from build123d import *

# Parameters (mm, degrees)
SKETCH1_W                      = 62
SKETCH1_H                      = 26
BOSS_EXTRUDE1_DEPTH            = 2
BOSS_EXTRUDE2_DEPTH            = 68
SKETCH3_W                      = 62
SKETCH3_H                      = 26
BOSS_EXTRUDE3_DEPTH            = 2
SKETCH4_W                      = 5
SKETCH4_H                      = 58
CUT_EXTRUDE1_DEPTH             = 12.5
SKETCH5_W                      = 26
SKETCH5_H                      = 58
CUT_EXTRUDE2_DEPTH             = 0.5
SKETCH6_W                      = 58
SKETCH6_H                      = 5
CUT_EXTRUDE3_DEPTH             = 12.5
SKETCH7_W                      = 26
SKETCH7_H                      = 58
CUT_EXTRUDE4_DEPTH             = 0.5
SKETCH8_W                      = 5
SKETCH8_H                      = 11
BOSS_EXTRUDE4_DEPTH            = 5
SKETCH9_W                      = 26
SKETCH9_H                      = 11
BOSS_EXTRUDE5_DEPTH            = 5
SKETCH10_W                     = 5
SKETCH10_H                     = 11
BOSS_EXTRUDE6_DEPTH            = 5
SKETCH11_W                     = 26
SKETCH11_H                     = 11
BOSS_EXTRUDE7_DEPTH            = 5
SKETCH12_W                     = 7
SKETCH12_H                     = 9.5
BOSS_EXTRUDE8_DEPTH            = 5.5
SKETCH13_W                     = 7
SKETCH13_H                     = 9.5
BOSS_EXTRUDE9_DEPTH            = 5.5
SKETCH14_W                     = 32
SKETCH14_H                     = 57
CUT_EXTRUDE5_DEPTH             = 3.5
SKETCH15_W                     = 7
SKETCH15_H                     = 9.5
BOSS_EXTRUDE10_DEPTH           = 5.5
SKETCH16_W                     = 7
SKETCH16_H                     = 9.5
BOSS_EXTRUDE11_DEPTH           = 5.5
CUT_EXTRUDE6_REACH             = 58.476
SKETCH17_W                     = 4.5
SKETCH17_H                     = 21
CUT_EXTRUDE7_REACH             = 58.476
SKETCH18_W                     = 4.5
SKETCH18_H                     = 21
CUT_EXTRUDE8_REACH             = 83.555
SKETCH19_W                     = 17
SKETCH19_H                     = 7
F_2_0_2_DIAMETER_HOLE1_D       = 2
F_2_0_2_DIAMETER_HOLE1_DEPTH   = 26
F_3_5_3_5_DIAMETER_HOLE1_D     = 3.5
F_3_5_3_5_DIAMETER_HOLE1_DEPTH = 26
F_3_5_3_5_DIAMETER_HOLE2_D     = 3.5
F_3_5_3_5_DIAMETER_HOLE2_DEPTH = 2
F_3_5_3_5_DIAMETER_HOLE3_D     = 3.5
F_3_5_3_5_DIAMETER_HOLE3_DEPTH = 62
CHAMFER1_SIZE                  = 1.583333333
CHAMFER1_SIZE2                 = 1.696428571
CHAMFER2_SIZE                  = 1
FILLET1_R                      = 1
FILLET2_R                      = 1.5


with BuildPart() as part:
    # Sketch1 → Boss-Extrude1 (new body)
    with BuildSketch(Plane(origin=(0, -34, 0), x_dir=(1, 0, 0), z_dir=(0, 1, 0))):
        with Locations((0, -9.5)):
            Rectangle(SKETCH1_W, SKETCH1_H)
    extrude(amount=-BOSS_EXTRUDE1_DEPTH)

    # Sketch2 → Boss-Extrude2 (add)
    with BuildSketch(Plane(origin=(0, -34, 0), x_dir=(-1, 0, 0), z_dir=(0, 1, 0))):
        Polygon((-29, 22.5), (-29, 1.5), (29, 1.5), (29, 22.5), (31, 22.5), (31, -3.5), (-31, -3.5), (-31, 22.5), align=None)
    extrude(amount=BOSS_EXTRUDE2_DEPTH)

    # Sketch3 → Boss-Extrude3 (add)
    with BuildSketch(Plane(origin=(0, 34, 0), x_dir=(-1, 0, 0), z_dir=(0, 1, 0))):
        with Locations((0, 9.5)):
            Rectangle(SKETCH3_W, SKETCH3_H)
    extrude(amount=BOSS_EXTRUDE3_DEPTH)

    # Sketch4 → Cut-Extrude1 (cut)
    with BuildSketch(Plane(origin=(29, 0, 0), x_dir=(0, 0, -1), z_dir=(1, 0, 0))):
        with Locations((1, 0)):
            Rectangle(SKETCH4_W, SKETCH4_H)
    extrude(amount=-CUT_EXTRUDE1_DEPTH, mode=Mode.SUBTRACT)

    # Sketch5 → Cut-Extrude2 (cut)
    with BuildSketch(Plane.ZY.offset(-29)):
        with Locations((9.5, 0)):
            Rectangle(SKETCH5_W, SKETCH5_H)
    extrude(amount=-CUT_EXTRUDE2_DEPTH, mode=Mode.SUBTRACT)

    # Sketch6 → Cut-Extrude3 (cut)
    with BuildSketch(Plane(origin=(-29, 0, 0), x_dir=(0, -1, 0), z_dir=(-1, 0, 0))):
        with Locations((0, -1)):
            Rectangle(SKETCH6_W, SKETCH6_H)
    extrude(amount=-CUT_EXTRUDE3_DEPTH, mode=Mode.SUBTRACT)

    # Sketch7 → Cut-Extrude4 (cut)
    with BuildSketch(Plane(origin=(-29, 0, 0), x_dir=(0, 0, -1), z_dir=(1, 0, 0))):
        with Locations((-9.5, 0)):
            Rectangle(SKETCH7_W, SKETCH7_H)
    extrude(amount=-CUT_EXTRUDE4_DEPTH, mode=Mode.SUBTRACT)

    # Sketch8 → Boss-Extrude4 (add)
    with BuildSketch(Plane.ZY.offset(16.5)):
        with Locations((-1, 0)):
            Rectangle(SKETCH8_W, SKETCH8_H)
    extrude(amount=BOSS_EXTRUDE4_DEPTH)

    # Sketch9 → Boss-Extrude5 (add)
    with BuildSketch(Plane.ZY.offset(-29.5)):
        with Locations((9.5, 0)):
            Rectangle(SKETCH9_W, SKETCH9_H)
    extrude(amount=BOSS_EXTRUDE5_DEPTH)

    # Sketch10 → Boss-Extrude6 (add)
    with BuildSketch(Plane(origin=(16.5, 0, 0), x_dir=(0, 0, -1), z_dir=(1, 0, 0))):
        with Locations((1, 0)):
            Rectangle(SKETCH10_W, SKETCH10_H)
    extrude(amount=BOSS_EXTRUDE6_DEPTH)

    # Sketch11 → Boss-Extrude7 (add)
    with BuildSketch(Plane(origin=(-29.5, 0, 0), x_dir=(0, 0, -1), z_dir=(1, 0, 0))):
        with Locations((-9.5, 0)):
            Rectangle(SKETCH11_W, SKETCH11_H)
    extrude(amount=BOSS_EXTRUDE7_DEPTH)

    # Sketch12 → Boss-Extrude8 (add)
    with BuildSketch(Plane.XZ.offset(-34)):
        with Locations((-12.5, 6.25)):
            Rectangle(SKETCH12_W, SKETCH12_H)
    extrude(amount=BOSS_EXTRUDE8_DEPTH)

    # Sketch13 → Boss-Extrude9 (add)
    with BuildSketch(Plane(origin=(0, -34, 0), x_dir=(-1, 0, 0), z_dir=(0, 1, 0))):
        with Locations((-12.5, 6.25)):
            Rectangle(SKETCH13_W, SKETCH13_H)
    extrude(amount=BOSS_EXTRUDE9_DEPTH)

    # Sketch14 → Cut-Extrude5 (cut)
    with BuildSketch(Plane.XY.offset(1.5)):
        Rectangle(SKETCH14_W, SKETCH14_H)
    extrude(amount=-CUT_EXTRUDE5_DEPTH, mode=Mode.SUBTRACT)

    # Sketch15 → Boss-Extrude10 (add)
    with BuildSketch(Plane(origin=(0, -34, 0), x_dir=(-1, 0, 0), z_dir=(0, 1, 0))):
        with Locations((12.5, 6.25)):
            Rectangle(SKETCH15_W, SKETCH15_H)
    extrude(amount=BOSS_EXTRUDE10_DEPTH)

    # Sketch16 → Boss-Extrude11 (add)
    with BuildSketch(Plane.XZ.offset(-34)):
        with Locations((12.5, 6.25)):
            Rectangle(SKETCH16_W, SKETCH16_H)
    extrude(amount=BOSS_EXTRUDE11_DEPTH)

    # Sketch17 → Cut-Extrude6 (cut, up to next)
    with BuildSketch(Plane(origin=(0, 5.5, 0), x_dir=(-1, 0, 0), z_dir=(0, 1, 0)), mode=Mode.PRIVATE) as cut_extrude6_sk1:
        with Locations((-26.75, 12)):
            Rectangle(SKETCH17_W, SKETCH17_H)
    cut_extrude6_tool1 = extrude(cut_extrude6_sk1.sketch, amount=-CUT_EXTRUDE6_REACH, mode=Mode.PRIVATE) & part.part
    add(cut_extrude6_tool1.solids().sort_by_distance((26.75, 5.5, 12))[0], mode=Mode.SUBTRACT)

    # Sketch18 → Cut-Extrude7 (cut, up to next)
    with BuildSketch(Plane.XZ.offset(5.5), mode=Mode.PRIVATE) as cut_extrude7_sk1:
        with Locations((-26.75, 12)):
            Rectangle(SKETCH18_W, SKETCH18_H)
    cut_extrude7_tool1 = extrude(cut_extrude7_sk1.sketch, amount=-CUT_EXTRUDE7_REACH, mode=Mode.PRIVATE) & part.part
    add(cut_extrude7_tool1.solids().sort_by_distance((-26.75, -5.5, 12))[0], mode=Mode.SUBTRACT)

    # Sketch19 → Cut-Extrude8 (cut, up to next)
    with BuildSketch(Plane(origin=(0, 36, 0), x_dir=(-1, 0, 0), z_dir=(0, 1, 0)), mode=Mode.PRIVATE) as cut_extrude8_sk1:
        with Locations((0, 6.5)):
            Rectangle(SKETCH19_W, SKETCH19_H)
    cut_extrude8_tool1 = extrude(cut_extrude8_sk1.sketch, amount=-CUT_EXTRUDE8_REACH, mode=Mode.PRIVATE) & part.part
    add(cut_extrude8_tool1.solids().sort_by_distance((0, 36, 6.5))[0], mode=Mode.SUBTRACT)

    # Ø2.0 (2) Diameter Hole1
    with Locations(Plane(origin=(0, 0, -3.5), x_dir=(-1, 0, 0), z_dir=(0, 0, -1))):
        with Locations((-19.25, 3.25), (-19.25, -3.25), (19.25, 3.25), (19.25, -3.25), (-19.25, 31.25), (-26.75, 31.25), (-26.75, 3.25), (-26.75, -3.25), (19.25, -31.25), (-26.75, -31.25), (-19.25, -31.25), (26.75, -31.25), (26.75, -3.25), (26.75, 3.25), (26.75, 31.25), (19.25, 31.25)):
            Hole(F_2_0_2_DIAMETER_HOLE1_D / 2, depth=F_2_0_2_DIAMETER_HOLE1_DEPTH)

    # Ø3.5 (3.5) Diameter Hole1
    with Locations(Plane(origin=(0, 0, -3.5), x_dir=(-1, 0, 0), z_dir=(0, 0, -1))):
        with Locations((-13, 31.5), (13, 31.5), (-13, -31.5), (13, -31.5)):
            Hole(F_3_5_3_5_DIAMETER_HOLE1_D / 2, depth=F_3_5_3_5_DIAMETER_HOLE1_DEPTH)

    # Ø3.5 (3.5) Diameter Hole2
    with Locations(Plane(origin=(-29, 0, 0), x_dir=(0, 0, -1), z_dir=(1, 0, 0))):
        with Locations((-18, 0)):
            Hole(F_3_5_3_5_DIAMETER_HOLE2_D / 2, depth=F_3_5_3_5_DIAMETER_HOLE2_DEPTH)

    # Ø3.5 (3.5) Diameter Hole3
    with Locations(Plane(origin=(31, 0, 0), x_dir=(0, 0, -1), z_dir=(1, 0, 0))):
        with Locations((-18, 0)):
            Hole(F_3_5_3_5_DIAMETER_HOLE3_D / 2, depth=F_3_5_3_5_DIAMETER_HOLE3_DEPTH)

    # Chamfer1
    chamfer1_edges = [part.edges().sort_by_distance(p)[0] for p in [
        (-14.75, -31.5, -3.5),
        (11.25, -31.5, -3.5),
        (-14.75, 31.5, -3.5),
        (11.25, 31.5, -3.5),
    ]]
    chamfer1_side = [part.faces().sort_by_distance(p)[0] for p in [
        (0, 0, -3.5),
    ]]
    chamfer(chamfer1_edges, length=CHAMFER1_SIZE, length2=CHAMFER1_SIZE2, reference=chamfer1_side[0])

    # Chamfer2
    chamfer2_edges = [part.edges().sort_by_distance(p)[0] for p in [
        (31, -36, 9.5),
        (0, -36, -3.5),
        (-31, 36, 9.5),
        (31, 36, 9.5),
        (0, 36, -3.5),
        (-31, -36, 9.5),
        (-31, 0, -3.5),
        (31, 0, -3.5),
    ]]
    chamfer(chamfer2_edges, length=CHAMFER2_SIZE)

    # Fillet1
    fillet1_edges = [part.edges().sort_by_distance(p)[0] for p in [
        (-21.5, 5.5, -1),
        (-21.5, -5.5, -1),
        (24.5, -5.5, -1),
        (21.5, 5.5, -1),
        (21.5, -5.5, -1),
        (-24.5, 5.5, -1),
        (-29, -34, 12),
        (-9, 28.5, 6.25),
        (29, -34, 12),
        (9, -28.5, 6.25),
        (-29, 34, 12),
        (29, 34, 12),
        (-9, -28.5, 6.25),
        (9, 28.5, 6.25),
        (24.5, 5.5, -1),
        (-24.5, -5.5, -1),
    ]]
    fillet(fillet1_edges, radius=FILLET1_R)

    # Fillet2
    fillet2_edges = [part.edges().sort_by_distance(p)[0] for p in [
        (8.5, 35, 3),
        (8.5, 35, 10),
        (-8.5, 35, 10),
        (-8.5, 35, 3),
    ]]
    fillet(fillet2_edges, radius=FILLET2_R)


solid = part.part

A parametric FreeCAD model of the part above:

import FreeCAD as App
import Part
import Sketcher
from FreeCAD import Vector


def edges_at(feature, points):
    """Names of the edges that pass closest to the given points."""
    edges = feature.Shape.Edges
    near = lambda p: min(range(len(edges)), key=lambda i: edges[i].distToShape(Part.Vertex(*p))[0])
    return sorted({f"Edge{near(p) + 1}" for p in points})

doc = App.newDocument("Part")
body = doc.addObject("PartDesign::Body", "Body")

sketch1 = body.newObject("Sketcher::SketchObject", "Sketch")
sketch1.AttachmentSupport = (doc.getObject("XZ_Plane"), [""])
sketch1.MapMode = "FlatFace"
sketch1.AttachmentOffset = App.Placement(Vector(0, 0, 34), App.Rotation())
sketch1.addGeometry([
    Part.LineSegment(Vector(-31, -3.5, 0), Vector(-31, 22.5, 0)),
    Part.LineSegment(Vector(-31, 22.5, 0), Vector(31, 22.5, 0)),
    Part.LineSegment(Vector(31, 22.5, 0), Vector(31, -3.5, 0)),
    Part.LineSegment(Vector(31, -3.5, 0), Vector(-31, -3.5, 0)),
], False)
sketch1.addConstraint([
    Sketcher.Constraint("Coincident", 0, 2, 1, 1),
    Sketcher.Constraint("Coincident", 1, 2, 2, 1),
    Sketcher.Constraint("Coincident", 2, 2, 3, 1),
    Sketcher.Constraint("Coincident", 3, 2, 0, 1),
    Sketcher.Constraint("Vertical", 0),
    Sketcher.Constraint("Horizontal", 1),
    Sketcher.Constraint("Vertical", 2),
    Sketcher.Constraint("Horizontal", 3),
    Sketcher.Constraint("DistanceX", 1, 1, 1, 2, 62.0),
    Sketcher.Constraint("DistanceY", 0, 1, 0, 2, 26.0),
    Sketcher.Constraint("DistanceX", 0, 2, -1, 1, 31.0),
    Sketcher.Constraint("DistanceY", -1, 1, 0, 2, 22.5),
])
pad1 = body.newObject("PartDesign::Pad", "Pad")
pad1.Profile = sketch1
pad1.Length = 2

sketch2 = body.newObject("Sketcher::SketchObject", "Sketch001")
sketch2.AttachmentSupport = (doc.getObject("XZ_Plane"), [""])
sketch2.MapMode = "FlatFace"
sketch2.AttachmentOffset = App.Placement(Vector(0, 0, 34), App.Rotation())
sketch2.addGeometry([
    Part.LineSegment(Vector(29, 1.5, 0), Vector(29, 22.5, 0)),
    Part.LineSegment(Vector(29, 22.5, 0), Vector(31, 22.5, 0)),
    Part.LineSegment(Vector(31, 22.5, 0), Vector(31, -3.5, 0)),
    Part.LineSegment(Vector(31, -3.5, 0), Vector(-31, -3.5, 0)),
    Part.LineSegment(Vector(-31, -3.5, 0), Vector(-31, 22.5, 0)),
    Part.LineSegment(Vector(-31, 22.5, 0), Vector(-29, 22.5, 0)),
    Part.LineSegment(Vector(-29, 22.5, 0), Vector(-29, 1.5, 0)),
    Part.LineSegment(Vector(-29, 1.5, 0), Vector(29, 1.5, 0)),
], False)
sketch2.addConstraint([
    Sketcher.Constraint("Coincident", 0, 2, 1, 1),
    Sketcher.Constraint("Coincident", 1, 2, 2, 1),
    Sketcher.Constraint("Coincident", 2, 2, 3, 1),
    Sketcher.Constraint("Coincident", 3, 2, 4, 1),
    Sketcher.Constraint("Coincident", 4, 2, 5, 1),
    Sketcher.Constraint("Coincident", 5, 2, 6, 1),
    Sketcher.Constraint("Coincident", 6, 2, 7, 1),
    Sketcher.Constraint("Coincident", 7, 2, 0, 1),
    Sketcher.Constraint("Vertical", 0),
    Sketcher.Constraint("Horizontal", 1),
    Sketcher.Constraint("Vertical", 2),
    Sketcher.Constraint("Horizontal", 3),
    Sketcher.Constraint("Vertical", 4),
    Sketcher.Constraint("Horizontal", 5),
    Sketcher.Constraint("Vertical", 6),
    Sketcher.Constraint("Horizontal", 7),
    Sketcher.Constraint("Symmetric", 1, 2, 4, 2, -2),
    Sketcher.Constraint("Equal", 1, 5),
    Sketcher.Constraint("DistanceX", 1, 1, 1, 2, 2.0),
    Sketcher.Constraint("DistanceX", 3, 2, 3, 1, 62.0),
    Sketcher.Constraint("DistanceY", 0, 1, 0, 2, 21.0),
    Sketcher.Constraint("DistanceY", 2, 2, 2, 1, 26.0),
    Sketcher.Constraint("DistanceY", -1, 1, 0, 2, 22.5),
])
pad2 = body.newObject("PartDesign::Pad", "Pad001")
pad2.Profile = sketch2
pad2.Length = 68
pad2.Reversed = True

sketch3 = body.newObject("Sketcher::SketchObject", "Sketch002")
sketch3.AttachmentSupport = (doc.getObject("XZ_Plane"), [""])
sketch3.MapMode = "FlatFace"
sketch3.AttachmentOffset = App.Placement(Vector(0, 0, -34), App.Rotation())
sketch3.addGeometry([
    Part.LineSegment(Vector(31, 22.5, 0), Vector(31, -3.5, 0)),
    Part.LineSegment(Vector(31, -3.5, 0), Vector(-31, -3.5, 0)),
    Part.LineSegment(Vector(-31, -3.5, 0), Vector(-31, 22.5, 0)),
    Part.LineSegment(Vector(-31, 22.5, 0), Vector(31, 22.5, 0)),
], False)
sketch3.addConstraint([
    Sketcher.Constraint("Coincident", 0, 2, 1, 1),
    Sketcher.Constraint("Coincident", 1, 2, 2, 1),
    Sketcher.Constraint("Coincident", 2, 2, 3, 1),
    Sketcher.Constraint("Coincident", 3, 2, 0, 1),
    Sketcher.Constraint("Vertical", 0),
    Sketcher.Constraint("Horizontal", 1),
    Sketcher.Constraint("Vertical", 2),
    Sketcher.Constraint("Horizontal", 3),
    Sketcher.Constraint("DistanceX", 1, 2, 1, 1, 62.0),
    Sketcher.Constraint("DistanceY", 0, 2, 0, 1, 26.0),
    Sketcher.Constraint("DistanceX", -1, 1, 0, 2, 31.0),
    Sketcher.Constraint("DistanceY", 0, 2, -1, 1, 3.5),
])
pad3 = body.newObject("PartDesign::Pad", "Pad002")
pad3.Profile = sketch3
pad3.Length = 2
pad3.Reversed = True

sketch4 = body.newObject("Sketcher::SketchObject", "Sketch003")
sketch4.AttachmentSupport = (doc.getObject("YZ_Plane"), [""])
sketch4.MapMode = "FlatFace"
sketch4.AttachmentOffset = App.Placement(Vector(0, 0, 29), App.Rotation())
sketch4.addGeometry([
    Part.LineSegment(Vector(29, 1.5, 0), Vector(-29, 1.5, 0)),
    Part.LineSegment(Vector(-29, 1.5, 0), Vector(-29, -3.5, 0)),
    Part.LineSegment(Vector(-29, -3.5, 0), Vector(29, -3.5, 0)),
    Part.LineSegment(Vector(29, -3.5, 0), Vector(29, 1.5, 0)),
], False)
sketch4.addConstraint([
    Sketcher.Constraint("Coincident", 0, 2, 1, 1),
    Sketcher.Constraint("Coincident", 1, 2, 2, 1),
    Sketcher.Constraint("Coincident", 2, 2, 3, 1),
    Sketcher.Constraint("Coincident", 3, 2, 0, 1),
    Sketcher.Constraint("Horizontal", 0),
    Sketcher.Constraint("Vertical", 1),
    Sketcher.Constraint("Horizontal", 2),
    Sketcher.Constraint("Vertical", 3),
    Sketcher.Constraint("DistanceX", 0, 2, 0, 1, 58.0),
    Sketcher.Constraint("DistanceY", 1, 2, 1, 1, 5.0),
    Sketcher.Constraint("DistanceX", 0, 2, -1, 1, 29.0),
    Sketcher.Constraint("DistanceY", -1, 1, 0, 2, 1.5),
])
pocket1 = body.newObject("PartDesign::Pocket", "Pocket")
pocket1.Profile = sketch4
pocket1.Length = 12.5

sketch5 = body.newObject("Sketcher::SketchObject", "Sketch004")
sketch5.AttachmentSupport = (doc.getObject("YZ_Plane"), [""])
sketch5.MapMode = "FlatFace"
sketch5.AttachmentOffset = App.Placement(Vector(0, 0, 29), App.Rotation())
sketch5.addGeometry([
    Part.LineSegment(Vector(29, -3.5, 0), Vector(-29, -3.5, 0)),
    Part.LineSegment(Vector(-29, -3.5, 0), Vector(-29, 22.5, 0)),
    Part.LineSegment(Vector(-29, 22.5, 0), Vector(29, 22.5, 0)),
    Part.LineSegment(Vector(29, 22.5, 0), Vector(29, -3.5, 0)),
], False)
sketch5.addConstraint([
    Sketcher.Constraint("Coincident", 0, 2, 1, 1),
    Sketcher.Constraint("Coincident", 1, 2, 2, 1),
    Sketcher.Constraint("Coincident", 2, 2, 3, 1),
    Sketcher.Constraint("Coincident", 3, 2, 0, 1),
    Sketcher.Constraint("Horizontal", 0),
    Sketcher.Constraint("Vertical", 1),
    Sketcher.Constraint("Horizontal", 2),
    Sketcher.Constraint("Vertical", 3),
    Sketcher.Constraint("DistanceX", 0, 2, 0, 1, 58.0),
    Sketcher.Constraint("DistanceY", 1, 1, 1, 2, 26.0),
    Sketcher.Constraint("DistanceX", 0, 2, -1, 1, 29.0),
    Sketcher.Constraint("DistanceY", 0, 2, -1, 1, 3.5),
])
pocket2 = body.newObject("PartDesign::Pocket", "Pocket001")
pocket2.Profile = sketch5
pocket2.Length = 0.5
pocket2.Reversed = True

sketch6 = body.newObject("Sketcher::SketchObject", "Sketch005")
sketch6.AttachmentSupport = (doc.getObject("YZ_Plane"), [""])
sketch6.MapMode = "FlatFace"
sketch6.AttachmentOffset = App.Placement(Vector(0, 0, -29), App.Rotation())
sketch6.addGeometry([
    Part.LineSegment(Vector(29, 1.5, 0), Vector(29, -3.5, 0)),
    Part.LineSegment(Vector(29, -3.5, 0), Vector(-29, -3.5, 0)),
    Part.LineSegment(Vector(-29, -3.5, 0), Vector(-29, 1.5, 0)),
    Part.LineSegment(Vector(-29, 1.5, 0), Vector(29, 1.5, 0)),
], False)
sketch6.addConstraint([
    Sketcher.Constraint("Coincident", 0, 2, 1, 1),
    Sketcher.Constraint("Coincident", 1, 2, 2, 1),
    Sketcher.Constraint("Coincident", 2, 2, 3, 1),
    Sketcher.Constraint("Coincident", 3, 2, 0, 1),
    Sketcher.Constraint("Vertical", 0),
    Sketcher.Constraint("Horizontal", 1),
    Sketcher.Constraint("Vertical", 2),
    Sketcher.Constraint("Horizontal", 3),
    Sketcher.Constraint("DistanceX", 1, 2, 1, 1, 58.0),
    Sketcher.Constraint("DistanceY", 0, 2, 0, 1, 5.0),
    Sketcher.Constraint("DistanceX", -1, 1, 0, 2, 29.0),
    Sketcher.Constraint("DistanceY", 0, 2, -1, 1, 3.5),
])
pocket3 = body.newObject("PartDesign::Pocket", "Pocket002")
pocket3.Profile = sketch6
pocket3.Length = 12.5
pocket3.Reversed = True

sketch7 = body.newObject("Sketcher::SketchObject", "Sketch006")
sketch7.AttachmentSupport = (doc.getObject("YZ_Plane"), [""])
sketch7.MapMode = "FlatFace"
sketch7.AttachmentOffset = App.Placement(Vector(0, 0, -29), App.Rotation())
sketch7.addGeometry([
    Part.LineSegment(Vector(29, 22.5, 0), Vector(-29, 22.5, 0)),
    Part.LineSegment(Vector(-29, 22.5, 0), Vector(-29, -3.5, 0)),
    Part.LineSegment(Vector(-29, -3.5, 0), Vector(29, -3.5, 0)),
    Part.LineSegment(Vector(29, -3.5, 0), Vector(29, 22.5, 0)),
], False)
sketch7.addConstraint([
    Sketcher.Constraint("Coincident", 0, 2, 1, 1),
    Sketcher.Constraint("Coincident", 1, 2, 2, 1),
    Sketcher.Constraint("Coincident", 2, 2, 3, 1),
    Sketcher.Constraint("Coincident", 3, 2, 0, 1),
    Sketcher.Constraint("Horizontal", 0),
    Sketcher.Constraint("Vertical", 1),
    Sketcher.Constraint("Horizontal", 2),
    Sketcher.Constraint("Vertical", 3),
    Sketcher.Constraint("DistanceX", 0, 2, 0, 1, 58.0),
    Sketcher.Constraint("DistanceY", 1, 2, 1, 1, 26.0),
    Sketcher.Constraint("DistanceX", 0, 2, -1, 1, 29.0),
    Sketcher.Constraint("DistanceY", -1, 1, 0, 2, 22.5),
])
pocket4 = body.newObject("PartDesign::Pocket", "Pocket003")
pocket4.Profile = sketch7
pocket4.Length = 0.5

sketch8 = body.newObject("Sketcher::SketchObject", "Sketch007")
sketch8.AttachmentSupport = (doc.getObject("YZ_Plane"), [""])
sketch8.MapMode = "FlatFace"
sketch8.AttachmentOffset = App.Placement(Vector(0, 0, -16.5), App.Rotation())
sketch8.addGeometry([
    Part.LineSegment(Vector(5.5, -3.5, 0), Vector(-5.5, -3.5, 0)),
    Part.LineSegment(Vector(-5.5, -3.5, 0), Vector(-5.5, 1.5, 0)),
    Part.LineSegment(Vector(-5.5, 1.5, 0), Vector(5.5, 1.5, 0)),
    Part.LineSegment(Vector(5.5, 1.5, 0), Vector(5.5, -3.5, 0)),
], False)
sketch8.addConstraint([
    Sketcher.Constraint("Coincident", 0, 2, 1, 1),
    Sketcher.Constraint("Coincident", 1, 2, 2, 1),
    Sketcher.Constraint("Coincident", 2, 2, 3, 1),
    Sketcher.Constraint("Coincident", 3, 2, 0, 1),
    Sketcher.Constraint("Horizontal", 0),
    Sketcher.Constraint("Vertical", 1),
    Sketcher.Constraint("Horizontal", 2),
    Sketcher.Constraint("Vertical", 3),
    Sketcher.Constraint("DistanceX", 0, 2, 0, 1, 11.0),
    Sketcher.Constraint("DistanceY", 1, 1, 1, 2, 5.0),
    Sketcher.Constraint("DistanceX", 0, 2, -1, 1, 5.5),
    Sketcher.Constraint("DistanceY", 0, 2, -1, 1, 3.5),
])
pad4 = body.newObject("PartDesign::Pad", "Pad003")
pad4.Profile = sketch8
pad4.Length = 5
pad4.Reversed = True

sketch9 = body.newObject("Sketcher::SketchObject", "Sketch008")
sketch9.AttachmentSupport = (doc.getObject("YZ_Plane"), [""])
sketch9.MapMode = "FlatFace"
sketch9.AttachmentOffset = App.Placement(Vector(0, 0, 29.5), App.Rotation())
sketch9.addGeometry([
    Part.LineSegment(Vector(5.5, -3.5, 0), Vector(-5.5, -3.5, 0)),
    Part.LineSegment(Vector(-5.5, -3.5, 0), Vector(-5.5, 22.5, 0)),
    Part.LineSegment(Vector(-5.5, 22.5, 0), Vector(5.5, 22.5, 0)),
    Part.LineSegment(Vector(5.5, 22.5, 0), Vector(5.5, -3.5, 0)),
], False)
sketch9.addConstraint([
    Sketcher.Constraint("Coincident", 0, 2, 1, 1),
    Sketcher.Constraint("Coincident", 1, 2, 2, 1),
    Sketcher.Constraint("Coincident", 2, 2, 3, 1),
    Sketcher.Constraint("Coincident", 3, 2, 0, 1),
    Sketcher.Constraint("Horizontal", 0),
    Sketcher.Constraint("Vertical", 1),
    Sketcher.Constraint("Horizontal", 2),
    Sketcher.Constraint("Vertical", 3),
    Sketcher.Constraint("DistanceX", 0, 2, 0, 1, 11.0),
    Sketcher.Constraint("DistanceY", 1, 1, 1, 2, 26.0),
    Sketcher.Constraint("DistanceX", 0, 2, -1, 1, 5.5),
    Sketcher.Constraint("DistanceY", 0, 2, -1, 1, 3.5),
])
pad5 = body.newObject("PartDesign::Pad", "Pad004")
pad5.Profile = sketch9
pad5.Length = 5
pad5.Reversed = True

sketch10 = body.newObject("Sketcher::SketchObject", "Sketch009")
sketch10.AttachmentSupport = (doc.getObject("YZ_Plane"), [""])
sketch10.MapMode = "FlatFace"
sketch10.AttachmentOffset = App.Placement(Vector(0, 0, 16.5), App.Rotation())
sketch10.addGeometry([
    Part.LineSegment(Vector(5.5, 1.5, 0), Vector(-5.5, 1.5, 0)),
    Part.LineSegment(Vector(-5.5, 1.5, 0), Vector(-5.5, -3.5, 0)),
    Part.LineSegment(Vector(-5.5, -3.5, 0), Vector(5.5, -3.5, 0)),
    Part.LineSegment(Vector(5.5, -3.5, 0), Vector(5.5, 1.5, 0)),
], False)
sketch10.addConstraint([
    Sketcher.Constraint("Coincident", 0, 2, 1, 1),
    Sketcher.Constraint("Coincident", 1, 2, 2, 1),
    Sketcher.Constraint("Coincident", 2, 2, 3, 1),
    Sketcher.Constraint("Coincident", 3, 2, 0, 1),
    Sketcher.Constraint("Horizontal", 0),
    Sketcher.Constraint("Vertical", 1),
    Sketcher.Constraint("Horizontal", 2),
    Sketcher.Constraint("Vertical", 3),
    Sketcher.Constraint("DistanceX", 0, 2, 0, 1, 11.0),
    Sketcher.Constraint("DistanceY", 1, 2, 1, 1, 5.0),
    Sketcher.Constraint("DistanceX", 0, 2, -1, 1, 5.5),
    Sketcher.Constraint("DistanceY", -1, 1, 0, 2, 1.5),
])
pad6 = body.newObject("PartDesign::Pad", "Pad005")
pad6.Profile = sketch10
pad6.Length = 5

sketch11 = body.newObject("Sketcher::SketchObject", "Sketch010")
sketch11.AttachmentSupport = (doc.getObject("YZ_Plane"), [""])
sketch11.MapMode = "FlatFace"
sketch11.AttachmentOffset = App.Placement(Vector(0, 0, -29.5), App.Rotation())
sketch11.addGeometry([
    Part.LineSegment(Vector(5.5, 22.5, 0), Vector(-5.5, 22.5, 0)),
    Part.LineSegment(Vector(-5.5, 22.5, 0), Vector(-5.5, -3.5, 0)),
    Part.LineSegment(Vector(-5.5, -3.5, 0), Vector(5.5, -3.5, 0)),
    Part.LineSegment(Vector(5.5, -3.5, 0), Vector(5.5, 22.5, 0)),
], False)
sketch11.addConstraint([
    Sketcher.Constraint("Coincident", 0, 2, 1, 1),
    Sketcher.Constraint("Coincident", 1, 2, 2, 1),
    Sketcher.Constraint("Coincident", 2, 2, 3, 1),
    Sketcher.Constraint("Coincident", 3, 2, 0, 1),
    Sketcher.Constraint("Horizontal", 0),
    Sketcher.Constraint("Vertical", 1),
    Sketcher.Constraint("Horizontal", 2),
    Sketcher.Constraint("Vertical", 3),
    Sketcher.Constraint("DistanceX", 0, 2, 0, 1, 11.0),
    Sketcher.Constraint("DistanceY", 1, 2, 1, 1, 26.0),
    Sketcher.Constraint("DistanceX", 0, 2, -1, 1, 5.5),
    Sketcher.Constraint("DistanceY", -1, 1, 0, 2, 22.5),
])
pad7 = body.newObject("PartDesign::Pad", "Pad006")
pad7.Profile = sketch11
pad7.Length = 5

sketch12 = body.newObject("Sketcher::SketchObject", "Sketch011")
sketch12.AttachmentSupport = (doc.getObject("XZ_Plane"), [""])
sketch12.MapMode = "FlatFace"
sketch12.AttachmentOffset = App.Placement(Vector(0, 0, -34), App.Rotation())
sketch12.addGeometry([
    Part.LineSegment(Vector(-16, 11, 0), Vector(-16, 1.5, 0)),
    Part.LineSegment(Vector(-16, 1.5, 0), Vector(-9, 1.5, 0)),
    Part.LineSegment(Vector(-9, 1.5, 0), Vector(-9, 11, 0)),
    Part.LineSegment(Vector(-9, 11, 0), Vector(-16, 11, 0)),
], False)
sketch12.addConstraint([
    Sketcher.Constraint("Coincident", 0, 2, 1, 1),
    Sketcher.Constraint("Coincident", 1, 2, 2, 1),
    Sketcher.Constraint("Coincident", 2, 2, 3, 1),
    Sketcher.Constraint("Coincident", 3, 2, 0, 1),
    Sketcher.Constraint("Vertical", 0),
    Sketcher.Constraint("Horizontal", 1),
    Sketcher.Constraint("Vertical", 2),
    Sketcher.Constraint("Horizontal", 3),
    Sketcher.Constraint("DistanceX", 1, 1, 1, 2, 7.0),
    Sketcher.Constraint("DistanceY", 0, 2, 0, 1, 9.5),
    Sketcher.Constraint("DistanceX", 0, 2, -1, 1, 16.0),
    Sketcher.Constraint("DistanceY", -1, 1, 2, 2, 11.0),
])
pad8 = body.newObject("PartDesign::Pad", "Pad007")
pad8.Profile = sketch12
pad8.Length = 5.5

sketch13 = body.newObject("Sketcher::SketchObject", "Sketch012")
sketch13.AttachmentSupport = (doc.getObject("XZ_Plane"), [""])
sketch13.MapMode = "FlatFace"
sketch13.AttachmentOffset = App.Placement(Vector(0, 0, 34), App.Rotation())
sketch13.addGeometry([
    Part.LineSegment(Vector(16, 11, 0), Vector(16, 1.5, 0)),
    Part.LineSegment(Vector(16, 1.5, 0), Vector(9, 1.5, 0)),
    Part.LineSegment(Vector(9, 1.5, 0), Vector(9, 11, 0)),
    Part.LineSegment(Vector(9, 11, 0), Vector(16, 11, 0)),
], False)
sketch13.addConstraint([
    Sketcher.Constraint("Coincident", 0, 2, 1, 1),
    Sketcher.Constraint("Coincident", 1, 2, 2, 1),
    Sketcher.Constraint("Coincident", 2, 2, 3, 1),
    Sketcher.Constraint("Coincident", 3, 2, 0, 1),
    Sketcher.Constraint("Vertical", 0),
    Sketcher.Constraint("Horizontal", 1),
    Sketcher.Constraint("Vertical", 2),
    Sketcher.Constraint("Horizontal", 3),
    Sketcher.Constraint("DistanceX", 1, 2, 1, 1, 7.0),
    Sketcher.Constraint("DistanceY", 0, 2, 0, 1, 9.5),
    Sketcher.Constraint("DistanceX", -1, 1, 0, 2, 16.0),
    Sketcher.Constraint("DistanceY", -1, 1, 2, 2, 11.0),
])
pad9 = body.newObject("PartDesign::Pad", "Pad008")
pad9.Profile = sketch13
pad9.Length = 5.5
pad9.Reversed = True

sketch14 = body.newObject("Sketcher::SketchObject", "Sketch013")
sketch14.AttachmentSupport = (doc.getObject("XY_Plane"), [""])
sketch14.MapMode = "FlatFace"
sketch14.AttachmentOffset = App.Placement(Vector(0, 0, 1.5), App.Rotation())
sketch14.addGeometry([
    Part.LineSegment(Vector(-16, 28.5, 0), Vector(-16, -28.5, 0)),
    Part.LineSegment(Vector(-16, -28.5, 0), Vector(16, -28.5, 0)),
    Part.LineSegment(Vector(16, -28.5, 0), Vector(16, 28.5, 0)),
    Part.LineSegment(Vector(16, 28.5, 0), Vector(-16, 28.5, 0)),
], False)
sketch14.addConstraint([
    Sketcher.Constraint("Coincident", 0, 2, 1, 1),
    Sketcher.Constraint("Coincident", 1, 2, 2, 1),
    Sketcher.Constraint("Coincident", 2, 2, 3, 1),
    Sketcher.Constraint("Coincident", 3, 2, 0, 1),
    Sketcher.Constraint("Vertical", 0),
    Sketcher.Constraint("Horizontal", 1),
    Sketcher.Constraint("Vertical", 2),
    Sketcher.Constraint("Horizontal", 3),
    Sketcher.Constraint("Symmetric", 0, 2, 2, 2, -1, 1),
    Sketcher.Constraint("DistanceX", 1, 1, 1, 2, 32.0),
    Sketcher.Constraint("DistanceY", 0, 2, 0, 1, 57.0),
])
pocket5 = body.newObject("PartDesign::Pocket", "Pocket004")
pocket5.Profile = sketch14
pocket5.Length = 3.5

sketch15 = body.newObject("Sketcher::SketchObject", "Sketch014")
sketch15.AttachmentSupport = (doc.getObject("XZ_Plane"), [""])
sketch15.MapMode = "FlatFace"
sketch15.AttachmentOffset = App.Placement(Vector(0, 0, 34), App.Rotation())
sketch15.addGeometry([
    Part.LineSegment(Vector(-9, 11, 0), Vector(-9, 1.5, 0)),
    Part.LineSegment(Vector(-9, 1.5, 0), Vector(-16, 1.5, 0)),
    Part.LineSegment(Vector(-16, 1.5, 0), Vector(-16, 11, 0)),
    Part.LineSegment(Vector(-16, 11, 0), Vector(-9, 11, 0)),
], False)
sketch15.addConstraint([
    Sketcher.Constraint("Coincident", 0, 2, 1, 1),
    Sketcher.Constraint("Coincident", 1, 2, 2, 1),
    Sketcher.Constraint("Coincident", 2, 2, 3, 1),
    Sketcher.Constraint("Coincident", 3, 2, 0, 1),
    Sketcher.Constraint("Vertical", 0),
    Sketcher.Constraint("Horizontal", 1),
    Sketcher.Constraint("Vertical", 2),
    Sketcher.Constraint("Horizontal", 3),
    Sketcher.Constraint("DistanceX", 1, 2, 1, 1, 7.0),
    Sketcher.Constraint("DistanceY", 0, 2, 0, 1, 9.5),
    Sketcher.Constraint("DistanceX", 0, 2, -1, 1, 9.0),
    Sketcher.Constraint("DistanceY", -1, 1, 2, 2, 11.0),
])
pad10 = body.newObject("PartDesign::Pad", "Pad009")
pad10.Profile = sketch15
pad10.Length = 5.5
pad10.Reversed = True

sketch16 = body.newObject("Sketcher::SketchObject", "Sketch015")
sketch16.AttachmentSupport = (doc.getObject("XZ_Plane"), [""])
sketch16.MapMode = "FlatFace"
sketch16.AttachmentOffset = App.Placement(Vector(0, 0, -34), App.Rotation())
sketch16.addGeometry([
    Part.LineSegment(Vector(9, 11, 0), Vector(9, 1.5, 0)),
    Part.LineSegment(Vector(9, 1.5, 0), Vector(16, 1.5, 0)),
    Part.LineSegment(Vector(16, 1.5, 0), Vector(16, 11, 0)),
    Part.LineSegment(Vector(16, 11, 0), Vector(9, 11, 0)),
], False)
sketch16.addConstraint([
    Sketcher.Constraint("Coincident", 0, 2, 1, 1),
    Sketcher.Constraint("Coincident", 1, 2, 2, 1),
    Sketcher.Constraint("Coincident", 2, 2, 3, 1),
    Sketcher.Constraint("Coincident", 3, 2, 0, 1),
    Sketcher.Constraint("Vertical", 0),
    Sketcher.Constraint("Horizontal", 1),
    Sketcher.Constraint("Vertical", 2),
    Sketcher.Constraint("Horizontal", 3),
    Sketcher.Constraint("DistanceX", 1, 1, 1, 2, 7.0),
    Sketcher.Constraint("DistanceY", 0, 2, 0, 1, 9.5),
    Sketcher.Constraint("DistanceX", -1, 1, 0, 2, 9.0),
    Sketcher.Constraint("DistanceY", -1, 1, 2, 2, 11.0),
])
pad11 = body.newObject("PartDesign::Pad", "Pad010")
pad11.Profile = sketch16
pad11.Length = 5.5

sketch17 = body.newObject("Sketcher::SketchObject", "Sketch016")
sketch17.AttachmentSupport = (doc.getObject("XZ_Plane"), [""])
sketch17.MapMode = "FlatFace"
sketch17.AttachmentOffset = App.Placement(Vector(0, 0, -5.5), App.Rotation())
sketch17.addGeometry([
    Part.LineSegment(Vector(29, 22.5, 0), Vector(29, 1.5, 0)),
    Part.LineSegment(Vector(29, 1.5, 0), Vector(24.5, 1.5, 0)),
    Part.LineSegment(Vector(24.5, 1.5, 0), Vector(24.5, 22.5, 0)),
    Part.LineSegment(Vector(24.5, 22.5, 0), Vector(29, 22.5, 0)),
], False)
sketch17.addConstraint([
    Sketcher.Constraint("Coincident", 0, 2, 1, 1),
    Sketcher.Constraint("Coincident", 1, 2, 2, 1),
    Sketcher.Constraint("Coincident", 2, 2, 3, 1),
    Sketcher.Constraint("Coincident", 3, 2, 0, 1),
    Sketcher.Constraint("Vertical", 0),
    Sketcher.Constraint("Horizontal", 1),
    Sketcher.Constraint("Vertical", 2),
    Sketcher.Constraint("Horizontal", 3),
    Sketcher.Constraint("DistanceY", 0, 2, 0, 1, 21.0),
    Sketcher.Constraint("DistanceX", 1, 2, 1, 1, 4.5),
    Sketcher.Constraint("DistanceX", -1, 1, 0, 2, 29.0),
    Sketcher.Constraint("DistanceY", -1, 1, 0, 2, 1.5),
])
pocket6 = body.newObject("PartDesign::Pocket", "Pocket005")
pocket6.Profile = sketch17
pocket6.Type = "UpToFirst"
pocket6.Reversed = True

sketch18 = body.newObject("Sketcher::SketchObject", "Sketch017")
sketch18.AttachmentSupport = (doc.getObject("XZ_Plane"), [""])
sketch18.MapMode = "FlatFace"
sketch18.AttachmentOffset = App.Placement(Vector(0, 0, 5.5), App.Rotation())
sketch18.addGeometry([
    Part.LineSegment(Vector(-29, 22.5, 0), Vector(-29, 1.5, 0)),
    Part.LineSegment(Vector(-29, 1.5, 0), Vector(-24.5, 1.5, 0)),
    Part.LineSegment(Vector(-24.5, 1.5, 0), Vector(-24.5, 22.5, 0)),
    Part.LineSegment(Vector(-24.5, 22.5, 0), Vector(-29, 22.5, 0)),
], False)
sketch18.addConstraint([
    Sketcher.Constraint("Coincident", 0, 2, 1, 1),
    Sketcher.Constraint("Coincident", 1, 2, 2, 1),
    Sketcher.Constraint("Coincident", 2, 2, 3, 1),
    Sketcher.Constraint("Coincident", 3, 2, 0, 1),
    Sketcher.Constraint("Vertical", 0),
    Sketcher.Constraint("Horizontal", 1),
    Sketcher.Constraint("Vertical", 2),
    Sketcher.Constraint("Horizontal", 3),
    Sketcher.Constraint("DistanceY", 0, 2, 0, 1, 21.0),
    Sketcher.Constraint("DistanceX", 1, 1, 1, 2, 4.5),
    Sketcher.Constraint("DistanceX", 0, 2, -1, 1, 29.0),
    Sketcher.Constraint("DistanceY", -1, 1, 0, 2, 1.5),
])
pocket7 = body.newObject("PartDesign::Pocket", "Pocket006")
pocket7.Profile = sketch18
pocket7.Type = "UpToFirst"

sketch19 = body.newObject("Sketcher::SketchObject", "Sketch018")
sketch19.AttachmentSupport = (doc.getObject("XZ_Plane"), [""])
sketch19.MapMode = "FlatFace"
sketch19.AttachmentOffset = App.Placement(Vector(0, 0, -36), App.Rotation())
sketch19.addGeometry([
    Part.LineSegment(Vector(8.5, 10, 0), Vector(8.5, 3, 0)),
    Part.LineSegment(Vector(8.5, 3, 0), Vector(-8.5, 3, 0)),
    Part.LineSegment(Vector(-8.5, 3, 0), Vector(-8.5, 10, 0)),
    Part.LineSegment(Vector(-8.5, 10, 0), Vector(8.5, 10, 0)),
], False)
sketch19.addConstraint([
    Sketcher.Constraint("Coincident", 0, 2, 1, 1),
    Sketcher.Constraint("Coincident", 1, 2, 2, 1),
    Sketcher.Constraint("Coincident", 2, 2, 3, 1),
    Sketcher.Constraint("Coincident", 3, 2, 0, 1),
    Sketcher.Constraint("Vertical", 0),
    Sketcher.Constraint("Horizontal", 1),
    Sketcher.Constraint("Vertical", 2),
    Sketcher.Constraint("Horizontal", 3),
    Sketcher.Constraint("DistanceX", 1, 2, 1, 1, 17.0),
    Sketcher.Constraint("DistanceY", 0, 2, 0, 1, 7.0),
    Sketcher.Constraint("DistanceY", -1, 1, 0, 2, 3.0),
    Sketcher.Constraint("DistanceX", -1, 1, 0, 2, 8.5),
])
pocket8 = body.newObject("PartDesign::Pocket", "Pocket007")
pocket8.Profile = sketch19
pocket8.Type = "UpToFirst"
pocket8.Reversed = True

sketch20 = body.newObject("Sketcher::SketchObject", "Sketch019")
sketch20.AttachmentSupport = (doc.getObject("XY_Plane"), [""])
sketch20.MapMode = "FlatFace"
sketch20.AttachmentOffset = App.Placement(Vector(0, 0, -3.5), App.Rotation())
sketch20.addGeometry([
    Part.Circle(Vector(19.25, 3.25, 0), Vector(0, 0, 1), 1),
    Part.Circle(Vector(19.25, -3.25, 0), Vector(0, 0, 1), 1),
    Part.Circle(Vector(-19.25, 3.25, 0), Vector(0, 0, 1), 1),
    Part.Circle(Vector(-19.25, -3.25, 0), Vector(0, 0, 1), 1),
    Part.Circle(Vector(19.25, 31.25, 0), Vector(0, 0, 1), 1),
    Part.Circle(Vector(26.75, 31.25, 0), Vector(0, 0, 1), 1),
    Part.Circle(Vector(26.75, 3.25, 0), Vector(0, 0, 1), 1),
    Part.Circle(Vector(26.75, -3.25, 0), Vector(0, 0, 1), 1),
    Part.Circle(Vector(-19.25, -31.25, 0), Vector(0, 0, 1), 1),
    Part.Circle(Vector(26.75, -31.25, 0), Vector(0, 0, 1), 1),
    Part.Circle(Vector(19.25, -31.25, 0), Vector(0, 0, 1), 1),
    Part.Circle(Vector(-26.75, -31.25, 0), Vector(0, 0, 1), 1),
    Part.Circle(Vector(-26.75, -3.25, 0), Vector(0, 0, 1), 1),
    Part.Circle(Vector(-26.75, 3.25, 0), Vector(0, 0, 1), 1),
    Part.Circle(Vector(-26.75, 31.25, 0), Vector(0, 0, 1), 1),
    Part.Circle(Vector(-19.25, 31.25, 0), Vector(0, 0, 1), 1),
], False)
sketch20.addConstraint([
    Sketcher.Constraint("Equal", 0, 1),
    Sketcher.Constraint("Equal", 1, 2),
    Sketcher.Constraint("Equal", 2, 3),
    Sketcher.Constraint("Equal", 3, 4),
    Sketcher.Constraint("Equal", 4, 5),
    Sketcher.Constraint("Equal", 5, 6),
    Sketcher.Constraint("Equal", 6, 7),
    Sketcher.Constraint("Equal", 7, 8),
    Sketcher.Constraint("Equal", 8, 9),
    Sketcher.Constraint("Equal", 9, 10),
    Sketcher.Constraint("Equal", 10, 11),
    Sketcher.Constraint("Equal", 11, 12),
    Sketcher.Constraint("Equal", 12, 13),
    Sketcher.Constraint("Equal", 13, 14),
    Sketcher.Constraint("Equal", 14, 15),
    Sketcher.Constraint("Symmetric", 1, 3, 2, 3, -1, 1),
    Sketcher.Constraint("Symmetric", 0, 3, 3, 3, -1, 1),
    Sketcher.Constraint("Symmetric", 4, 3, 8, 3, -1, 1),
    Sketcher.Constraint("Symmetric", 5, 3, 11, 3, -1, 1),
    Sketcher.Constraint("Symmetric", 6, 3, 12, 3, -1, 1),
    Sketcher.Constraint("Symmetric", 7, 3, 13, 3, -1, 1),
    Sketcher.Constraint("Symmetric", 9, 3, 14, 3, -1, 1),
    Sketcher.Constraint("Symmetric", 10, 3, 15, 3, -1, 1),
    Sketcher.Constraint("Symmetric", 0, 3, 2, 3, -2),
    Sketcher.Constraint("Symmetric", 8, 3, 10, 3, -2),
    Sketcher.Constraint("Symmetric", 9, 3, 11, 3, -2),
    Sketcher.Constraint("Symmetric", 7, 3, 12, 3, -2),
    Sketcher.Constraint("Horizontal", 4, 3, 5, 3),
    Sketcher.Constraint("Horizontal", 2, 3, 6, 3),
    Sketcher.Constraint("Vertical", 1, 3, 4, 3),
    Sketcher.Constraint("Vertical", 5, 3, 6, 3),
    Sketcher.Constraint("Diameter", 0, 2.0),
    Sketcher.Constraint("DistanceY", 0, 3, 4, 3, 28.0),
    Sketcher.Constraint("DistanceX", 2, 3, 5, 3, 46.0),
    Sketcher.Constraint("DistanceY", 1, 3, 0, 3, 6.5),
    Sketcher.Constraint("DistanceX", 2, 3, 0, 3, 38.5),
])
doc.recompute()
hole = body.newObject("PartDesign::Hole", "Hole")
hole.Profile = sketch20
hole.ThreadType = "None"
hole.Diameter = 2
hole.DepthType = "Dimension"
hole.Depth = 26
hole.DrillPoint = "Flat"
hole.Reversed = True

sketch21 = body.newObject("Sketcher::SketchObject", "Sketch020")
sketch21.AttachmentSupport = (doc.getObject("XY_Plane"), [""])
sketch21.MapMode = "FlatFace"
sketch21.AttachmentOffset = App.Placement(Vector(0, 0, -3.5), App.Rotation())
sketch21.addGeometry([
    Part.Circle(Vector(13, 31.5, 0), Vector(0, 0, 1), 1.75),
    Part.Circle(Vector(-13, 31.5, 0), Vector(0, 0, 1), 1.75),
    Part.Circle(Vector(13, -31.5, 0), Vector(0, 0, 1), 1.75),
    Part.Circle(Vector(-13, -31.5, 0), Vector(0, 0, 1), 1.75),
], False)
sketch21.addConstraint([
    Sketcher.Constraint("Equal", 0, 1),
    Sketcher.Constraint("Equal", 1, 2),
    Sketcher.Constraint("Equal", 2, 3),
    Sketcher.Constraint("Symmetric", 1, 3, 2, 3, -1, 1),
    Sketcher.Constraint("Symmetric", 0, 3, 3, 3, -1, 1),
    Sketcher.Constraint("Symmetric", 0, 3, 1, 3, -2),
    Sketcher.Constraint("Diameter", 0, 3.5),
    Sketcher.Constraint("DistanceX", -1, 1, 0, 3, 13.0),
    Sketcher.Constraint("DistanceY", 2, 3, 0, 3, 63.0),
])
doc.recompute()
hole2 = body.newObject("PartDesign::Hole", "Hole001")
hole2.Profile = sketch21
hole2.ThreadType = "None"
hole2.Diameter = 3.5
hole2.DepthType = "Dimension"
hole2.Depth = 26
hole2.DrillPoint = "Flat"
hole2.Reversed = True

sketch22 = body.newObject("Sketcher::SketchObject", "Sketch021")
sketch22.AttachmentSupport = (doc.getObject("YZ_Plane"), [""])
sketch22.MapMode = "FlatFace"
sketch22.AttachmentOffset = App.Placement(Vector(0, 0, -29), App.Rotation())
sketch22.addGeometry(Part.Circle(Vector(0, 18, 0), Vector(0, 0, 1), 1.75), False)
sketch22.addConstraint([
    Sketcher.Constraint("PointOnObject", 0, 3, -2),
    Sketcher.Constraint("Diameter", 0, 3.5),
    Sketcher.Constraint("DistanceY", -1, 1, 0, 3, 18.0),
])
doc.recompute()
hole3 = body.newObject("PartDesign::Hole", "Hole002")
hole3.Profile = sketch22
hole3.ThreadType = "None"
hole3.Diameter = 3.5
hole3.DepthType = "Dimension"
hole3.Depth = 2
hole3.DrillPoint = "Flat"

sketch23 = body.newObject("Sketcher::SketchObject", "Sketch022")
sketch23.AttachmentSupport = (doc.getObject("YZ_Plane"), [""])
sketch23.MapMode = "FlatFace"
sketch23.AttachmentOffset = App.Placement(Vector(0, 0, 31), App.Rotation())
sketch23.addGeometry(Part.Circle(Vector(0, 18, 0), Vector(0, 0, 1), 1.75), False)
sketch23.addConstraint([
    Sketcher.Constraint("PointOnObject", 0, 3, -2),
    Sketcher.Constraint("Diameter", 0, 3.5),
    Sketcher.Constraint("DistanceY", -1, 1, 0, 3, 18.0),
])
doc.recompute()
hole4 = body.newObject("PartDesign::Hole", "Hole003")
hole4.Profile = sketch23
hole4.ThreadType = "None"
hole4.Diameter = 3.5
hole4.DepthType = "Dimension"
hole4.Depth = 62
hole4.DrillPoint = "Flat"
doc.recompute()

chamfer = body.newObject("PartDesign::Chamfer", "Chamfer")
chamfer.Base = (hole4, edges_at(hole4, [
    (-14.75, -31.5, -3.5),
    (11.25, -31.5, -3.5),
    (-14.75, 31.5, -3.5),
    (11.25, 31.5, -3.5),
]))
chamfer.ChamferType = "Two distances"
chamfer.Size = 1.583333
chamfer.Size2 = 1.696429
doc.recompute()

chamfer2 = body.newObject("PartDesign::Chamfer", "Chamfer001")
chamfer2.Base = (chamfer, edges_at(chamfer, [
    (31, -36, 9.5),
    (0, -36, -3.5),
    (-31, 36, 9.5),
    (31, 36, 9.5),
    (0, 36, -3.5),
    (-31, -36, 9.5),
    (-31, 0, -3.5),
    (31, 0, -3.5),
]))
chamfer2.Size = 1
doc.recompute()

fillet = body.newObject("PartDesign::Fillet", "Fillet")
fillet.Base = (chamfer2, edges_at(chamfer2, [
    (-21.5, 5.5, -1),
    (-21.5, -5.5, -1),
    (24.5, -5.5, -1),
    (21.5, 5.5, -1),
    (21.5, -5.5, -1),
    (-24.5, 5.5, -1),
    (-29, -34, 12),
    (-9, 28.5, 6.25),
    (29, -34, 12),
    (9, -28.5, 6.25),
    (-29, 34, 12),
    (29, 34, 12),
    (-9, -28.5, 6.25),
    (9, 28.5, 6.25),
    (24.5, 5.5, -1),
    (-24.5, -5.5, -1),
]))
fillet.Radius = 1
doc.recompute()

fillet2 = body.newObject("PartDesign::Fillet", "Fillet001")
fillet2.Base = (fillet, edges_at(fillet, [
    (8.5, 35, 3),
    (8.5, 35, 10),
    (-8.5, 35, 10),
    (-8.5, 35, 3),
]))
fillet2.Radius = 1.5

doc.recompute()
